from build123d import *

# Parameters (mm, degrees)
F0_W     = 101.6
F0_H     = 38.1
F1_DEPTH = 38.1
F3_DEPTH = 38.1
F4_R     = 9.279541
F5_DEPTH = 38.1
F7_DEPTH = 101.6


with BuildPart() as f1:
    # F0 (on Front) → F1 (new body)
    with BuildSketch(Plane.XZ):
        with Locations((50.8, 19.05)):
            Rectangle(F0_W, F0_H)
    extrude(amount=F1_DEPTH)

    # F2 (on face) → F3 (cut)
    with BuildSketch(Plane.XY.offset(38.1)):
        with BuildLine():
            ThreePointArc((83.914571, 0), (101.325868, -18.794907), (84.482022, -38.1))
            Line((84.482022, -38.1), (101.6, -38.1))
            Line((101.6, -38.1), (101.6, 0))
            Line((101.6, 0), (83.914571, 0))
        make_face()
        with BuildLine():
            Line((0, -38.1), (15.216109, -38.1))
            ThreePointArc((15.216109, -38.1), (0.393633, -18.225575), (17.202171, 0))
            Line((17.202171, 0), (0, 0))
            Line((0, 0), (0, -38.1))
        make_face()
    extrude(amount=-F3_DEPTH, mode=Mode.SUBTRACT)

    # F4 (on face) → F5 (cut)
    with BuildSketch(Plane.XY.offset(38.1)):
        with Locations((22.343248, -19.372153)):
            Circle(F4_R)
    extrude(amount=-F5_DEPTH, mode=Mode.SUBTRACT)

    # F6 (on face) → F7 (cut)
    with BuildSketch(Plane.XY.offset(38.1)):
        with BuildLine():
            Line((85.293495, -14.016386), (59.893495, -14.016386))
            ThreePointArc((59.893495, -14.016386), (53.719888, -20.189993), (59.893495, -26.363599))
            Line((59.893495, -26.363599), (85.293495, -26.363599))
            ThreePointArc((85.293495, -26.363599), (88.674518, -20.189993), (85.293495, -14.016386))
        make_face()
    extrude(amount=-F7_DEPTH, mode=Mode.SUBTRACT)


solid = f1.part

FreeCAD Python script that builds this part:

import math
import FreeCAD as App
import Part
import Sketcher
Q = App.Units.Quantity


def add_polygon(sketch, points):
    """Adds a closed chain of lines whose ends are joined by coincident constraints."""
    first, n = sketch.GeometryCount, len(points)
    for a, b in zip(points, points[1:] + points[:1]):
        sketch.addGeometry(Part.LineSegment(App.Vector(*a, 0), App.Vector(*b, 0)), False)
    for i in range(n):
        sketch.addConstraint(Sketcher.Constraint("Coincident", first + i, 2, first + (i + 1) % n, 1))

doc = App.newDocument("Part")
params = doc.addObject("Spreadsheet::Sheet", "Params")
for row, (alias, value) in enumerate([
    ("sketch1_width", "4 in"),
    ("sketch1_height", "1.5 in"),
    ("pad1_length", "1.5 in"),
    ("sketch2_height", "1.5 in"),
    ("pocket1_length", "1.5 in"),
    ("pocket2_length", "1.5 in"),
    ("sketch4_width", "1 in"),
    ("pocket3_length", "4 in"),
], start=1):
    params.set(f"A{row}", alias)
    params.set(f"B{row}", "=" + value)
    params.setAlias(f"B{row}", alias)

body = doc.addObject("PartDesign::Body", "Body")

sketch1 = body.newObject("Sketcher::SketchObject", "Sketch")
sketch1.AttachmentSupport = (doc.getObject("XZ_Plane"), [""])
sketch1.MapMode = "FlatFace"
add_polygon(sketch1, [(0, 38.1), (0, 0), (101.6, 0), (101.6, 38.1)])
sketch1.addConstraint(Sketcher.Constraint("Vertical", 0))
sketch1.addConstraint(Sketcher.Constraint("Horizontal", 1))
sketch1.addConstraint(Sketcher.Constraint("Vertical", 2))
sketch1.addConstraint(Sketcher.Constraint("Horizontal", 3))
sketch1.addConstraint(Sketcher.Constraint("Coincident", 0, 2, -1, 1))
sketch1.addConstraint(Sketcher.Constraint("DistanceX", 1, 1, 1, 2, Q("4 in")))
sketch1.addConstraint(Sketcher.Constraint("DistanceY", 0, 2, 0, 1, Q("1.5 in")))
sketch1.setExpression("Constraints[9]", "Params.sketch1_width")
sketch1.setExpression("Constraints[10]", "Params.sketch1_height")
pad1 = body.newObject("PartDesign::Pad", "Pad")
pad1.Profile = sketch1
pad1.setExpression("Length", "Params.pad1_length")

sketch2 = body.newObject("Sketcher::SketchObject", "Sketch001")
sketch2.AttachmentSupport = (doc.getObject("XY_Plane"), [""])
sketch2.MapMode = "FlatFace"
sketch2.AttachmentOffset = App.Placement(App.Vector(0, 0, 1.5 * 25.4), App.Rotation())
sketch2.addGeometry(Part.ArcOfCircle(Part.Circle(App.Vector(82.16798, -19.080239, 0), App.Vector(0, 0, 1), 19.160013), math.radians(-83.063193), math.radians(84.769762)), False)
sketch2.addGeometry(Part.LineSegment(App.Vector(84.482022, -38.1, 0), App.Vector(101.6, -38.1, 0)), False)
sketch2.addGeometry(Part.LineSegment(App.Vector(101.6, -38.1, 0), App.Vector(101.6, 0, 0)), False)
sketch2.addGeometry(Part.LineSegment(App.Vector(101.6, 0, 0), App.Vector(83.914571, 0, 0)), False)
sketch2.addGeometry(Part.LineSegment(App.Vector(0, -38.1, 0), App.Vector(15.216109, -38.1, 0)), False)
sketch2.addGeometry(Part.ArcOfCircle(Part.Circle(App.Vector(19.774383, -19.235848, 0), App.Vector(0, 0, 1), 19.407063), math.radians(97.616392), math.radians(256.415625)), False)
sketch2.addGeometry(Part.LineSegment(App.Vector(17.202171, 0, 0), App.Vector(0, 0, 0)), False)
sketch2.addGeometry(Part.LineSegment(App.Vector(0, 0, 0), App.Vector(0, -38.1, 0)), False)
sketch2.addConstraint(Sketcher.Constraint("Coincident", 0, 1, 1, 1))
sketch2.addConstraint(Sketcher.Constraint("Coincident", 1, 2, 2, 1))
sketch2.addConstraint(Sketcher.Constraint("Coincident", 2, 2, 3, 1))
sketch2.addConstraint(Sketcher.Constraint("Coincident", 3, 2, 0, 2))
sketch2.addConstraint(Sketcher.Constraint("Coincident", 4, 2, 5, 2))
sketch2.addConstraint(Sketcher.Constraint("Coincident", 5, 1, 6, 1))
sketch2.addConstraint(Sketcher.Constraint("Coincident", 6, 2, 7, 1))
sketch2.addConstraint(Sketcher.Constraint("Coincident", 7, 2, 4, 1))
sketch2.addConstraint(Sketcher.Constraint("Horizontal", 1))
sketch2.addConstraint(Sketcher.Constraint("Vertical", 2))
sketch2.addConstraint(Sketcher.Constraint("Horizontal", 3))
sketch2.addConstraint(Sketcher.Constraint("Horizontal", 4))
sketch2.addConstraint(Sketcher.Constraint("Horizontal", 6))
sketch2.addConstraint(Sketcher.Constraint("Vertical", 7))
sketch2.addConstraint(Sketcher.Constraint("Coincident", 6, 2, -1, 1))
sketch2.addConstraint(Sketcher.Constraint("PointOnObject", 2, 2, -1))
sketch2.addConstraint(Sketcher.Constraint("Horizontal", 1, 2, 4, 2))
sketch2.addConstraint(Sketcher.Constraint("DistanceY", 2, 1, 2, 2, Q("1.5 in")))
sketch2.addConstraint(Sketcher.Constraint("DistanceX", -1, 1, 1, 2, Q("4 in")))
sketch2.addConstraint(Sketcher.Constraint("Radius", 0, 19.160013))
sketch2.addConstraint(Sketcher.Constraint("Radius", 5, 19.407063))
sketch2.addConstraint(Sketcher.Constraint("DistanceX", 3, 2, 3, 1, 17.685429))
sketch2.addConstraint(Sketcher.Constraint("DistanceX", 4, 1, 4, 2, 15.216109))
sketch2.addConstraint(Sketcher.Constraint("DistanceX", 6, 2, 6, 1, 17.202171))
sketch2.addConstraint(Sketcher.Constraint("DistanceX", 1, 1, 1, 2, 17.117978))
sketch2.setExpression("Constraints[17]", "Params.sketch2_height")
pocket1 = body.newObject("PartDesign::Pocket", "Pocket")
pocket1.Profile = sketch2
pocket1.setExpression("Length", "Params.pocket1_length")

sketch3 = body.newObject("Sketcher::SketchObject", "Sketch002")
sketch3.AttachmentSupport = (doc.getObject("XY_Plane"), [""])
sketch3.MapMode = "FlatFace"
sketch3.AttachmentOffset = App.Placement(App.Vector(0, 0, 1.5 * 25.4), App.Rotation())
sketch3.addGeometry(Part.Circle(App.Vector(22.343248, -19.372153, 0), App.Vector(0, 0, 1), 9.279541), False)
sketch3.addConstraint(Sketcher.Constraint("Diameter", 0, 18.559082))
sketch3.addConstraint(Sketcher.Constraint("DistanceX", -1, 1, 0, 3, 22.343248))
sketch3.addConstraint(Sketcher.Constraint("DistanceY", 0, 3, -1, 1, 19.372153))
pocket2 = body.newObject("PartDesign::Pocket", "Pocket001")
pocket2.Profile = sketch3
pocket2.setExpression("Length", "Params.pocket2_length")

sketch4 = body.newObject("Sketcher::SketchObject", "Sketch003")
sketch4.AttachmentSupport = (doc.getObject("XY_Plane"), [""])
sketch4.MapMode = "FlatFace"
sketch4.AttachmentOffset = App.Placement(App.Vector(0, 0, 1.5 * 25.4), App.Rotation())
sketch4.addGeometry(Part.LineSegment(App.Vector(85.293495, -14.016386, 0), App.Vector(59.893495, -14.016386, 0)), False)
sketch4.addGeometry(Part.ArcOfCircle(Part.Circle(App.Vector(59.893495, -20.189992, 0), App.Vector(0, 0, 1), 6.173606), math.radians(89.999995), math.radians(270.000005)), False)
sketch4.addGeometry(Part.LineSegment(App.Vector(59.893495, -26.363599, 0), App.Vector(85.293495, -26.363599, 0)), False)
sketch4.addGeometry(Part.ArcOfCircle(Part.Circle(App.Vector(81.347633, -20.189992, 0), App.Vector(0, 0, 1), 7.326885), math.radians(-57.41531), math.radians(57.41531)), False)
sketch4.addConstraint(Sketcher.Constraint("Tangent", 0, 2, 1, 1))
sketch4.addConstraint(Sketcher.Constraint("Tangent", 1, 2, 2, 1))
sketch4.addConstraint(Sketcher.Constraint("Coincident", 2, 2, 3, 1))
sketch4.addConstraint(Sketcher.Constraint("Coincident", 3, 2, 0, 1))
sketch4.addConstraint(Sketcher.Constraint("Horizontal", 0))
sketch4.addConstraint(Sketcher.Constraint("Horizontal", 2))
sketch4.addConstraint(Sketcher.Constraint("Horizontal", 1, 3, 3, 3))
sketch4.addConstraint(Sketcher.Constraint("DistanceX", 0, 2, 0, 1, Q("1 in")))
sketch4.addConstraint(Sketcher.Constraint("Radius", 1, 6.173606))
sketch4.addConstraint(Sketcher.Constraint("Radius", 3, 7.326885))
sketch4.addConstraint(Sketcher.Constraint("DistanceY", 1, 2, -1, 1, 26.363599))
sketch4.addConstraint(Sketcher.Constraint("DistanceX", -1, 1, 1, 3, 59.893495))
sketch4.setExpression("Constraints[7]", "Params.sketch4_width")
pocket3 = body.newObject("PartDesign::Pocket", "Pocket002")
pocket3.Profile = sketch4
pocket3.setExpression("Length", "Params.pocket3_length")

doc.recompute()
